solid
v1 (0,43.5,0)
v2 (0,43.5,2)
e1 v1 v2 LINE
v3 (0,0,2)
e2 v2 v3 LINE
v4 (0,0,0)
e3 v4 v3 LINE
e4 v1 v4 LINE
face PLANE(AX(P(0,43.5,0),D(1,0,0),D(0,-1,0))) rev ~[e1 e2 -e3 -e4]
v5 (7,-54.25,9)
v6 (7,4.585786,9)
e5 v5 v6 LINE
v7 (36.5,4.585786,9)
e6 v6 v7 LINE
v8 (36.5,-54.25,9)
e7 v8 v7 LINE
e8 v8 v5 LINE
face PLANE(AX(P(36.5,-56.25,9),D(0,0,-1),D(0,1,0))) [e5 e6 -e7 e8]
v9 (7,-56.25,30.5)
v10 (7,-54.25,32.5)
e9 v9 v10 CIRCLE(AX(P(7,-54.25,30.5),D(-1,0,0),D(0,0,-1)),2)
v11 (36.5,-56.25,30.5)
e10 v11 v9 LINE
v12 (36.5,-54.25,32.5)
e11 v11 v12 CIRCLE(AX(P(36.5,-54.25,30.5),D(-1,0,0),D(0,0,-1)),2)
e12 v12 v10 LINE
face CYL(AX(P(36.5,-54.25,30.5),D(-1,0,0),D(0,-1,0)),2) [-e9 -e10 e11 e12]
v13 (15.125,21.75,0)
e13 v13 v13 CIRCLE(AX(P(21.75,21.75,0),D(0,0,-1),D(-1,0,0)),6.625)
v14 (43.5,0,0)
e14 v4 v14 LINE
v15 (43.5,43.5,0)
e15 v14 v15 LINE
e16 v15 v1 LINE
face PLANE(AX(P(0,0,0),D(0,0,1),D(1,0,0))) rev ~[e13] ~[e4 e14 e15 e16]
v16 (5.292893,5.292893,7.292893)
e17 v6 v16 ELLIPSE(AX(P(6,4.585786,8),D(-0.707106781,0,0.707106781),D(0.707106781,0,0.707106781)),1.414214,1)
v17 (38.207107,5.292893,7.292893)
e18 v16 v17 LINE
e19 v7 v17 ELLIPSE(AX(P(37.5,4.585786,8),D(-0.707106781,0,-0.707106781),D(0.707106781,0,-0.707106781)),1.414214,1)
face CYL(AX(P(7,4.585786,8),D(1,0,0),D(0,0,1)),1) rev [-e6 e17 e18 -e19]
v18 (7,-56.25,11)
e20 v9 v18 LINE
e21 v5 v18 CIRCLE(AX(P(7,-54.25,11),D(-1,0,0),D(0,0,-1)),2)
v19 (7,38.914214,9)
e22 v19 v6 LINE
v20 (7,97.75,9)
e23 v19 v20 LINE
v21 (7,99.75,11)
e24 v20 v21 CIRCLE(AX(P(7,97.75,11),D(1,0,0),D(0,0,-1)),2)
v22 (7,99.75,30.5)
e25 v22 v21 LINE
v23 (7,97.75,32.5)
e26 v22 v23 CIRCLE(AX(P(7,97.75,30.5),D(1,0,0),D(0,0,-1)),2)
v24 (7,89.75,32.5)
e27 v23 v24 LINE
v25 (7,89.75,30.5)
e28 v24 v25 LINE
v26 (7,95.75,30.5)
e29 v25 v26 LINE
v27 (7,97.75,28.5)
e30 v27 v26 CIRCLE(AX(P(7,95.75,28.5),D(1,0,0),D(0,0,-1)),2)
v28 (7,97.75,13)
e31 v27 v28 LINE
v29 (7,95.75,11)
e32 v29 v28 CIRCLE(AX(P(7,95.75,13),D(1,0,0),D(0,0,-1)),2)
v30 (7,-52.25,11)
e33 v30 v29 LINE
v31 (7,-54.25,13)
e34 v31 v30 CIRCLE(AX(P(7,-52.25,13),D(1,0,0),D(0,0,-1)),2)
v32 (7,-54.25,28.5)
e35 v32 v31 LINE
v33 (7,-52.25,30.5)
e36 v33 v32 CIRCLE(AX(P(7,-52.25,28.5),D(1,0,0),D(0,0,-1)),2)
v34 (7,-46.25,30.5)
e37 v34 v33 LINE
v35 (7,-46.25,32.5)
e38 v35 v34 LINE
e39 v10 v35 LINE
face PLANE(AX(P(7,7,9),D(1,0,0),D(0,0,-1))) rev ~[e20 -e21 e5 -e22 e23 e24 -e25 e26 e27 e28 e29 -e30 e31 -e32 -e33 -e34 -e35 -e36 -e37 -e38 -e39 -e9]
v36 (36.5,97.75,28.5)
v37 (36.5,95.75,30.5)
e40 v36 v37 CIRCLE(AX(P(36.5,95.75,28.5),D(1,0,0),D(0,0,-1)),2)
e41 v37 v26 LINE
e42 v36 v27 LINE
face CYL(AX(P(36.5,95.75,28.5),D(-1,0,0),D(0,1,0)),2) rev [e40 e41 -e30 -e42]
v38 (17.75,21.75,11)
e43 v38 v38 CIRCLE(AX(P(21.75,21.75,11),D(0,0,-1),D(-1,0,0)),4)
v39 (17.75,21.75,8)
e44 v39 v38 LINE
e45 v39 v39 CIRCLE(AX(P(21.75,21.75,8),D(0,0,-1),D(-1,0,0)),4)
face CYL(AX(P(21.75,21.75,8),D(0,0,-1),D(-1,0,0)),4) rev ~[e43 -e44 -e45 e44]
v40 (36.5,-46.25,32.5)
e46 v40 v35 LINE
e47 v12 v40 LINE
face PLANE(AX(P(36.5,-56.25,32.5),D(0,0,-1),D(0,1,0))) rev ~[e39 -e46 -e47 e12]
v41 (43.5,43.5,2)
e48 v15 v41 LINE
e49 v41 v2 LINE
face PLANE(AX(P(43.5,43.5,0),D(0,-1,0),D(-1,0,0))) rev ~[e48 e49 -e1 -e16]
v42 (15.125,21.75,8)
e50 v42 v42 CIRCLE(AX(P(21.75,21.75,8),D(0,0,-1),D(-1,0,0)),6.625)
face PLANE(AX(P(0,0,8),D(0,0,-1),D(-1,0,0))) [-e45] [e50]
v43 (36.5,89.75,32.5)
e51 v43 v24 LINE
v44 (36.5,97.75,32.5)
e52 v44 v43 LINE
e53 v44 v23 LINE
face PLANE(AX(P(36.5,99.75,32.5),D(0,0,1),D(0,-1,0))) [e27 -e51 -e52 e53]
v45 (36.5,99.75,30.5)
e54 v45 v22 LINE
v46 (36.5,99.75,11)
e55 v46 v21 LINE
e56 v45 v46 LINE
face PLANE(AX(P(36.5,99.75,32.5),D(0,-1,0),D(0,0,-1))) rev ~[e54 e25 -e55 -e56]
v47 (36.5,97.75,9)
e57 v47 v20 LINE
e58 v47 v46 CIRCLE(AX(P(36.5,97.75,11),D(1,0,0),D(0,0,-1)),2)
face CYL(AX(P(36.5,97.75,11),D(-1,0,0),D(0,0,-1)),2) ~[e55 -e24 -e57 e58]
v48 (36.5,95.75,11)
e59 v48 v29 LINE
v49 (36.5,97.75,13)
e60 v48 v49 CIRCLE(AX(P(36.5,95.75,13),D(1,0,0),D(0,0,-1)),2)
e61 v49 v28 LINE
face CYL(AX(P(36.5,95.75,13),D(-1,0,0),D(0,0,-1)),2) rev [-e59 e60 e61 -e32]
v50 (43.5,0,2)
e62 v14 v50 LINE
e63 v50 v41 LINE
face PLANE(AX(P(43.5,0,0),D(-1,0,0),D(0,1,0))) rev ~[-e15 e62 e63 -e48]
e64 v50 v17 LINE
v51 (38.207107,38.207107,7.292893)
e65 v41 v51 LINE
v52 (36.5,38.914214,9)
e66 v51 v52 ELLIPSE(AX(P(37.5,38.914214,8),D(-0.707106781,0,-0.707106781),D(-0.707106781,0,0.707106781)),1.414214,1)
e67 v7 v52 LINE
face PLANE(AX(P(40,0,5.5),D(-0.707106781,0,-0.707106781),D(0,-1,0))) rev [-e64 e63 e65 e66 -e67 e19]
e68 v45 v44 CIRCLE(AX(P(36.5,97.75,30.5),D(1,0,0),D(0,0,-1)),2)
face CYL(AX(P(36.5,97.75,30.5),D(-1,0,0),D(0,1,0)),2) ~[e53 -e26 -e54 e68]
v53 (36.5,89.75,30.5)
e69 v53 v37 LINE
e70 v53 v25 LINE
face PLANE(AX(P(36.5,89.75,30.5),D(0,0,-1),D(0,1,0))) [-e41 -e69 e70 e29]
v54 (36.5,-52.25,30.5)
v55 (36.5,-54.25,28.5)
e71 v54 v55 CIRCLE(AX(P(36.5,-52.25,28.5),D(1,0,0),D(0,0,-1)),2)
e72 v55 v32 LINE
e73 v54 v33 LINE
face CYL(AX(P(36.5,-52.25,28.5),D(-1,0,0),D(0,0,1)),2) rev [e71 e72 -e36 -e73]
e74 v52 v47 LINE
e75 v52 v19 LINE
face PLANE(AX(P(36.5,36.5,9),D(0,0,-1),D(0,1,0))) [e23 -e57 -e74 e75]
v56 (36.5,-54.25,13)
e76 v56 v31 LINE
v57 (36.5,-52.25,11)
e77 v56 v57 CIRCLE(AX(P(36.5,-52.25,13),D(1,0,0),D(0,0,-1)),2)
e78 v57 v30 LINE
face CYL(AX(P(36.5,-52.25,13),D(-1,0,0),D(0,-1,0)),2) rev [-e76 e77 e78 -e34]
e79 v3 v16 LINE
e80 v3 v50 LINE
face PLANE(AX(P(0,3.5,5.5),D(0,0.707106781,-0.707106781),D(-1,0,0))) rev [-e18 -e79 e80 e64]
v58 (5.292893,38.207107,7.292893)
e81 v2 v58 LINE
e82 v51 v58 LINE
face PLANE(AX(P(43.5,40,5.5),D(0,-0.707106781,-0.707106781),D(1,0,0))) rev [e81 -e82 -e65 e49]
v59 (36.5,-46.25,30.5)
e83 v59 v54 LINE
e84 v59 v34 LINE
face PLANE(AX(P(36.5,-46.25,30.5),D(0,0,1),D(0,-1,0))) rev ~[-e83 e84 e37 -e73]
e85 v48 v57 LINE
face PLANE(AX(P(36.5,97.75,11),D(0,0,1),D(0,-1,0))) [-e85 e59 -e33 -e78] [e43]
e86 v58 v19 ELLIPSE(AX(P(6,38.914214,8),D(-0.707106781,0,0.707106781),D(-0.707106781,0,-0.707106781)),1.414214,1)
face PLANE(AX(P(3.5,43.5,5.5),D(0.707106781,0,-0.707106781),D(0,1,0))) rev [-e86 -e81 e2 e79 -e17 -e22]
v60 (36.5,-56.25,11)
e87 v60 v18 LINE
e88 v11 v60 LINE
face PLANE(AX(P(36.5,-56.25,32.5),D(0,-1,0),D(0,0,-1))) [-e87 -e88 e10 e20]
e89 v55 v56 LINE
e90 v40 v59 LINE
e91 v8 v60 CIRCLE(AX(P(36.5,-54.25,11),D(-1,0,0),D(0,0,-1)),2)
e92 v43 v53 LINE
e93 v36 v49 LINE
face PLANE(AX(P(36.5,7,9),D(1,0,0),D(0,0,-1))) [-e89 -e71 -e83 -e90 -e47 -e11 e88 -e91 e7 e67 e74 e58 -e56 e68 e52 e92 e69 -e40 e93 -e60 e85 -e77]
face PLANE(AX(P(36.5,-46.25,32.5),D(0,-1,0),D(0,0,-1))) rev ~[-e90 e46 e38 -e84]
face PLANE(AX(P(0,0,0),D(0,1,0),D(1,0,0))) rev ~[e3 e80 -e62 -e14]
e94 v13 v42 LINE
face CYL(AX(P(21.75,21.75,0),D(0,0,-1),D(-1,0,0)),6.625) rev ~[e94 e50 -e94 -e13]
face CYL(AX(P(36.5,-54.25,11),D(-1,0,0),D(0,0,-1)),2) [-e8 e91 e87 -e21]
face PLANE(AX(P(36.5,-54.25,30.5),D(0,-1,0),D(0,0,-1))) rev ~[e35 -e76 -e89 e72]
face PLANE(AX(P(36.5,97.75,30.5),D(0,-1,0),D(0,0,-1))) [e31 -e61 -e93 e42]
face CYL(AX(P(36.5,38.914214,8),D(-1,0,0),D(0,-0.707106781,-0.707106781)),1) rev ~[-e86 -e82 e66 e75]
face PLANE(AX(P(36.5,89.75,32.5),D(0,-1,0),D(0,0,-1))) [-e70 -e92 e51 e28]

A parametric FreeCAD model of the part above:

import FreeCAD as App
import Part
import Sketcher
from FreeCAD import Vector
Q = App.Units.Quantity


def edges_at(feature, points):
    """Names of the edges that pass closest to the given points."""
    edges = feature.Shape.Edges
    near = lambda p: min(range(len(edges)), key=lambda i: edges[i].distToShape(Part.Vertex(*p))[0])
    return sorted({f"Edge{near(p) + 1}" for p in points})

doc = App.newDocument("Part")
params = doc.addObject("Spreadsheet::Sheet", "Params")
for row, (alias, value) in enumerate([
    ("sketch1_width", "43.5 mm"),
    ("pad1_length", "9 mm"),
    ("chamfer_size", "7 mm"),
    ("sketch2_width", "29.5 mm"),
    ("pad2_length", "2 mm"),
    ("sketch3_width", "156 mm"),
    ("sketch3_width2", "10 mm"),
    ("sketch3_width3", "8 mm"),
    ("sketch3_height", "2 mm"),
    ("sketch3_height2", "23.5 mm"),
    ("pad3_length", "29.5 mm"),
    ("fillet_radius", "1 mm"),
    ("fillet2_radius", "2 mm"),
    ("sketch4_diameter", "13.25 mm"),
    ("pocket1_length", "8 mm"),
    ("sketch5_diameter", "8 mm"),
    ("pocket2_length", "44.75 mm"),
], start=1):
    params.set(f"A{row}", alias)
    params.set(f"B{row}", "=" + value)
    params.setAlias(f"B{row}", alias)

body = doc.addObject("PartDesign::Body", "Body")

sketch1 = body.newObject("Sketcher::SketchObject", "Sketch")
sketch1.AttachmentSupport = (doc.getObject("XY_Plane"), [""])
sketch1.MapMode = "FlatFace"
sketch1.addGeometry([
    Part.LineSegment(Vector(0, 44, 0), Vector(0, 0, 0)),
    Part.LineSegment(Vector(0, 0, 0), Vector(44, 0, 0)),
    Part.LineSegment(Vector(44, 0, 0), Vector(44, 44, 0)),
    Part.LineSegment(Vector(44, 44, 0), Vector(0, 44, 0)),
], False)
sketch1.addConstraint([
    Sketcher.Constraint("Coincident", 0, 2, 1, 1),
    Sketcher.Constraint("Coincident", 1, 2, 2, 1),
    Sketcher.Constraint("Coincident", 2, 2, 3, 1),
    Sketcher.Constraint("Coincident", 3, 2, 0, 1),
    Sketcher.Constraint("Vertical", 0),
    Sketcher.Constraint("Horizontal", 1),
    Sketcher.Constraint("Vertical", 2),
    Sketcher.Constraint("Horizontal", 3),
    Sketcher.Constraint("Coincident", 0, 2, -1, 1),
    Sketcher.Constraint("Equal", 3, 0),
    Sketcher.Constraint("DistanceX", 1, 1, 1, 2, Q("43.5 mm")),
])
sketch1.setExpression("Constraints[10]", "Params.sketch1_width")
pad1 = body.newObject("PartDesign::Pad", "Pad")
pad1.Profile = sketch1
pad1.setExpression("Length", "Params.pad1_length")
doc.recompute()

chamfer = body.newObject("PartDesign::Chamfer", "Chamfer")
chamfer.Base = (pad1, edges_at(pad1, [
    (21.75, 43.5, 9),
    (0, 21.75, 9),
    (21.75, 0, 9),
    (43.5, 21.75, 9),
]))
chamfer.setExpression("Size", "Params.chamfer_size")

sketch2 = body.newObject("Sketcher::SketchObject", "Sketch001")
sketch2.AttachmentSupport = (doc.getObject("XY_Plane"), [""])
sketch2.MapMode = "FlatFace"
sketch2.AttachmentOffset = App.Placement(Vector(0, 0, 9), App.Rotation())
sketch2.addGeometry([
    Part.LineSegment(Vector(7, 36, 0), Vector(7, 7, 0)),
    Part.LineSegment(Vector(7, 7, 0), Vector(36, 7, 0)),
    Part.LineSegment(Vector(36, 7, 0), Vector(36, 36, 0)),
    Part.LineSegment(Vector(36, 36, 0), Vector(7, 36, 0)),
], False)
sketch2.addConstraint([
    Sketcher.Constraint("Coincident", 0, 2, 1, 1),
    Sketcher.Constraint("Coincident", 1, 2, 2, 1),
    Sketcher.Constraint("Coincident", 2, 2, 3, 1),
    Sketcher.Constraint("Coincident", 3, 2, 0, 1),
    Sketcher.Constraint("Vertical", 0),
    Sketcher.Constraint("Horizontal", 1),
    Sketcher.Constraint("Vertical", 2),
    Sketcher.Constraint("Horizontal", 3),
    Sketcher.Constraint("Equal", 3, 0),
    Sketcher.Constraint("DistanceX", 1, 1, 1, 2, Q("29.5 mm")),
    Sketcher.Constraint("DistanceX", -1, 1, 0, 2, Q("7 mm")),
    Sketcher.Constraint("DistanceY", -1, 1, 0, 2, Q("7 mm")),
])
sketch2.setExpression("Constraints[9]", "Params.sketch2_width")
pad2 = body.newObject("PartDesign::Pad", "Pad001")
pad2.Profile = sketch2
pad2.setExpression("Length", "Params.pad2_length")

sketch3 = body.newObject("Sketcher::SketchObject", "Sketch002")
sketch3.AttachmentSupport = (doc.getObject("YZ_Plane"), [""])
sketch3.MapMode = "FlatFace"
sketch3.AttachmentOffset = App.Placement(Vector(0, 0, 36.5), App.Rotation())
sketch3.addGeometry([
    Part.LineSegment(Vector(-56.2, 9, 0), Vector(99.8, 9, 0)),
    Part.LineSegment(Vector(99.8, 9, 0), Vector(99.8, 32.5, 0)),
    Part.LineSegment(Vector(99.8, 32.5, 0), Vector(89.8, 32.5, 0)),
    Part.LineSegment(Vector(89.8, 32.5, 0), Vector(89.8, 30.5, 0)),
    Part.LineSegment(Vector(89.8, 30.5, 0), Vector(97.8, 30.5, 0)),
    Part.LineSegment(Vector(97.8, 30.5, 0), Vector(97.8, 11, 0)),
    Part.LineSegment(Vector(97.8, 11, 0), Vector(-54.2, 11, 0)),
    Part.LineSegment(Vector(-54.2, 11, 0), Vector(-54.2, 30.5, 0)),
    Part.LineSegment(Vector(-54.2, 30.5, 0), Vector(-46.2, 30.5, 0)),
    Part.LineSegment(Vector(-46.2, 30.5, 0), Vector(-46.2, 32.5, 0)),
    Part.LineSegment(Vector(-46.2, 32.5, 0), Vector(-56.2, 32.5, 0)),
    Part.LineSegment(Vector(-56.2, 32.5, 0), Vector(-56.2, 9, 0)),
], False)
sketch3.addConstraint([
    Sketcher.Constraint("Coincident", 0, 2, 1, 1),
    Sketcher.Constraint("Coincident", 1, 2, 2, 1),
    Sketcher.Constraint("Coincident", 2, 2, 3, 1),
    Sketcher.Constraint("Coincident", 3, 2, 4, 1),
    Sketcher.Constraint("Coincident", 4, 2, 5, 1),
    Sketcher.Constraint("Coincident", 5, 2, 6, 1),
    Sketcher.Constraint("Coincident", 6, 2, 7, 1),
    Sketcher.Constraint("Coincident", 7, 2, 8, 1),
    Sketcher.Constraint("Coincident", 8, 2, 9, 1),
    Sketcher.Constraint("Coincident", 9, 2, 10, 1),
    Sketcher.Constraint("Coincident", 10, 2, 11, 1),
    Sketcher.Constraint("Coincident", 11, 2, 0, 1),
    Sketcher.Constraint("Horizontal", 0),
    Sketcher.Constraint("Vertical", 1),
    Sketcher.Constraint("Horizontal", 2),
    Sketcher.Constraint("Vertical", 3),
    Sketcher.Constraint("Horizontal", 4),
    Sketcher.Constraint("Vertical", 5),
    Sketcher.Constraint("Horizontal", 6),
    Sketcher.Constraint("Vertical", 7),
    Sketcher.Constraint("Horizontal", 8),
    Sketcher.Constraint("Vertical", 9),
    Sketcher.Constraint("Horizontal", 10),
    Sketcher.Constraint("Vertical", 11),
    Sketcher.Constraint("Horizontal", 4, 2, 7, 2),
    Sketcher.Constraint("Horizontal", 2, 2, 9, 2),
    Sketcher.Constraint("Equal", 4, 8),
    Sketcher.Constraint("Equal", 2, 10),
    Sketcher.Constraint("DistanceX", 0, 1, 0, 2, Q("156 mm")),
    Sketcher.Constraint("DistanceX", 2, 2, 2, 1, Q("10 mm")),
    Sketcher.Constraint("DistanceX", 4, 1, 4, 2, Q("8 mm")),
    Sketcher.Constraint("DistanceY", 3, 2, 3, 1, Q("2 mm")),
    Sketcher.Constraint("DistanceY", 1, 1, 1, 2, Q("23.5 mm")),
    Sketcher.Constraint("DistanceY", 5, 2, 5, 1, Q("19.5 mm")),
    Sketcher.Constraint("DistanceY", -1, 1, 0, 2, Q("9 mm")),
    Sketcher.Constraint("DistanceX", -1, 1, 0, 2, Q("99.75 mm")),
])
sketch3.setExpression("Constraints[28]", "Params.sketch3_width")
sketch3.setExpression("Constraints[29]", "Params.sketch3_width2")
sketch3.setExpression("Constraints[30]", "Params.sketch3_width3")
sketch3.setExpression("Constraints[31]", "Params.sketch3_height")
sketch3.setExpression("Constraints[32]", "Params.sketch3_height2")
pad3 = body.newObject("PartDesign::Pad", "Pad002")
pad3.Profile = sketch3
pad3.setExpression("Length", "Params.pad3_length")
pad3.Reversed = True
doc.recompute()

fillet = body.newObject("PartDesign::Fillet", "Fillet")
fillet.Base = (pad3, edges_at(pad3, [(21.75, 36.5, 9), (21.75, 7, 9)]))
fillet.setExpression("Radius", "Params.fillet_radius")
doc.recompute()

fillet2 = body.newObject("PartDesign::Fillet", "Fillet001")
fillet2.Base = (fillet, edges_at(fillet, [
    (21.75, -56.25, 9),
    (21.75, 99.75, 9),
    (21.75, 99.75, 32.5),
    (21.75, -56.25, 32.5),
    (21.75, -54.25, 30.5),
    (21.75, -54.25, 11),
    (21.75, 97.75, 11),
    (21.75, 97.75, 30.5),
]))
fillet2.setExpression("Radius", "Params.fillet2_radius")

sketch4 = body.newObject("Sketcher::SketchObject", "Sketch003")
sketch4.AttachmentSupport = (doc.getObject("XY_Plane"), [""])
sketch4.MapMode = "FlatFace"
sketch4.addGeometry(Part.Circle(Vector(22, 22, 0), Vector(0, 0, 1), 7), False)
sketch4.addConstraint([
    Sketcher.Constraint("Diameter", 0, Q("13.25 mm")),
    Sketcher.Constraint("DistanceX", -1, 1, 0, 3, Q("21.75 mm")),
    Sketcher.Constraint("DistanceY", -1, 1, 0, 3, Q("21.75 mm")),
])
sketch4.setExpression("Constraints[0]", "Params.sketch4_diameter")
pocket1 = body.newObject("PartDesign::Pocket", "Pocket")
pocket1.Profile = sketch4
pocket1.setExpression("Length", "Params.pocket1_length")
pocket1.Reversed = True

sketch5 = body.newObject("Sketcher::SketchObject", "Sketch004")
sketch5.AttachmentSupport = (doc.getObject("XY_Plane"), [""])
sketch5.MapMode = "FlatFace"
sketch5.AttachmentOffset = App.Placement(Vector(0, 0, 8), App.Rotation())
sketch5.addGeometry(Part.Circle(Vector(21.8, 21.8, 0), Vector(0, 0, 1), 4), False)
sketch5.addConstraint([
    Sketcher.Constraint("Diameter", 0, Q("8 mm")),
    Sketcher.Constraint("DistanceX", -1, 1, 0, 3, Q("21.75 mm")),
    Sketcher.Constraint("DistanceY", -1, 1, 0, 3, Q("21.75 mm")),
])
sketch5.setExpression("Constraints[0]", "Params.sketch5_diameter")
pocket2 = body.newObject("PartDesign::Pocket", "Pocket001")
pocket2.Profile = sketch5
pocket2.setExpression("Length", "Params.pocket2_length")
pocket2.Reversed = True

doc.recompute()
